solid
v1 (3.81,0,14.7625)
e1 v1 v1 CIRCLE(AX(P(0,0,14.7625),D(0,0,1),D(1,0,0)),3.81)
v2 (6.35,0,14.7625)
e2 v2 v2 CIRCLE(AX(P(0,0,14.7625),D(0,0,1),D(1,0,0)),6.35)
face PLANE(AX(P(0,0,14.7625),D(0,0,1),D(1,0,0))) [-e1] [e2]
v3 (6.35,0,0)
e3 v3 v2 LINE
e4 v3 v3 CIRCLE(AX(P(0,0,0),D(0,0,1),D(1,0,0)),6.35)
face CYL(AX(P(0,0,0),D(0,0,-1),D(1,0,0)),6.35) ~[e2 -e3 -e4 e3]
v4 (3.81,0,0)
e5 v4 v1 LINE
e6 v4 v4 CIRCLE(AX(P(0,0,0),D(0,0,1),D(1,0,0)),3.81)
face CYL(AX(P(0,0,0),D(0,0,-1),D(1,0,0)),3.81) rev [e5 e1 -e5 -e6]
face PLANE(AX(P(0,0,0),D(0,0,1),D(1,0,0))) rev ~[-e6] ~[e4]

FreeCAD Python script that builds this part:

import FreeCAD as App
import Part
import Sketcher
from FreeCAD import Vector
Q = App.Units.Quantity

doc = App.newDocument("Part")
params = doc.addObject("Spreadsheet::Sheet", "Params")
for row, (alias, value) in enumerate([
    ("sketch1_diameter", "0.5 in"),
    ("sketch1_diameter2", "0.3 in"),
    ("pad1_length", "0.5812008 in"),
], start=1):
    params.set(f"A{row}", alias)
    params.set(f"B{row}", "=" + value)
    params.setAlias(f"B{row}", alias)

body = doc.addObject("PartDesign::Body", "Body")

sketch1 = doc.addObject("Sketcher::SketchObject", "Sketch")
body.addObject(sketch1)
sketch1.AttachmentSupport = (doc.XY_Plane, [""])
sketch1.MapMode = "FlatFace"
sketch1.addGeometry([
    Part.Circle(Vector(0, 0, 0), Vector(0, 0, 1), 6.3),
    Part.Circle(Vector(0, 0, 0), Vector(0, 0, 1), 3.8),
], False)
sketch1.addConstraint([
    Sketcher.Constraint("Coincident", 0, 3, -1, 1),
    Sketcher.Constraint("Coincident", 1, 3, -1, 1),
    Sketcher.Constraint("Diameter", 0, Q("0.5 in")),
    Sketcher.Constraint("Diameter", 1, Q("0.3 in")),
])
sketch1.setExpression("Constraints[2]", "Params.sketch1_diameter")
sketch1.setExpression("Constraints[3]", "Params.sketch1_diameter2")
pad1 = doc.addObject("PartDesign::Pad", "Pad")
body.addObject(pad1)
pad1.Profile = sketch1
pad1.setExpression("Length", "Params.pad1_length")

doc.recompute()
